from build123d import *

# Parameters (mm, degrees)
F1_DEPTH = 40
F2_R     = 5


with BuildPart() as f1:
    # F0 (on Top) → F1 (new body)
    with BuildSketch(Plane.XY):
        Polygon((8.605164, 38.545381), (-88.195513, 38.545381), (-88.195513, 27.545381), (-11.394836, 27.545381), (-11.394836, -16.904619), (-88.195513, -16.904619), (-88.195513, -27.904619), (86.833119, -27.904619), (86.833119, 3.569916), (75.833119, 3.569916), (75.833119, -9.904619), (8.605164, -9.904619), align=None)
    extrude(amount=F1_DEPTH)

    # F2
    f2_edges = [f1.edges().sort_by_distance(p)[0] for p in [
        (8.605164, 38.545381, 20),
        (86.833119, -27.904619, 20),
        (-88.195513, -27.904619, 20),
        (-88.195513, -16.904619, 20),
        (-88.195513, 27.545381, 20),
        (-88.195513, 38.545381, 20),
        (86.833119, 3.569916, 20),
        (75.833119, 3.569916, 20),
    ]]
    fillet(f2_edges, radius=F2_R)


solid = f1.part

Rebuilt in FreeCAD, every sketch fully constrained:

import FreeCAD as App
import Part
import Sketcher

V = App.Vector
Q = App.Units.Quantity


def edges_at(feature, points):
    """Names of the edges that pass closest to the given points."""
    edges = feature.Shape.Edges
    near = lambda p: min(range(len(edges)), key=lambda i: edges[i].distToShape(Part.Vertex(*p))[0])
    return sorted({f"Edge{near(p) + 1}" for p in points})


def add_polygon(sketch, points):
    """Adds a closed chain of lines whose ends are joined by coincident constraints."""
    first, n = sketch.GeometryCount, len(points)
    for a, b in zip(points, points[1:] + points[:1]):
        sketch.addGeometry(Part.LineSegment(App.Vector(*a, 0), App.Vector(*b, 0)), False)
    for i in range(n):
        sketch.addConstraint(Sketcher.Constraint("Coincident", first + i, 2, first + (i + 1) % n, 1))

doc = App.newDocument("Part")
body = doc.addObject("PartDesign::Body", "Body")

# Sketch on XY plane
sketch1 = doc.addObject("Sketcher::SketchObject", "Sketch")
body.addObject(sketch1)
sketch1.AttachmentSupport = (doc.XY_Plane, [""])
sketch1.MapMode = "FlatFace"
add_polygon(sketch1, [(9, 39), (-88, 39), (-88, 28), (-11, 28), (-11, -17), (-88, -17), (-88, -28), (87, -28), (87, 4), (76, 4), (76, -10), (9, -10)])  # lines 0-11
sketch1.addConstraint([
    Sketcher.Constraint("Horizontal", 0),
    Sketcher.Constraint("Vertical", 1),
    Sketcher.Constraint("Horizontal", 2),
    Sketcher.Constraint("Vertical", 3),
    Sketcher.Constraint("Horizontal", 4),
    Sketcher.Constraint("Vertical", 5),
    Sketcher.Constraint("Horizontal", 6),
    Sketcher.Constraint("Vertical", 7),
    Sketcher.Constraint("Horizontal", 8),
    Sketcher.Constraint("Vertical", 9),
    Sketcher.Constraint("Horizontal", 10),
    Sketcher.Constraint("Vertical", 11),
    Sketcher.Constraint("Vertical", 1, 2, 4, 2),
    Sketcher.Constraint("Equal", 8, 1),
    Sketcher.Constraint("Equal", 1, 5),
    Sketcher.Constraint("DistanceX", 8, 2, 8, 1, Q("11 mm")),
    Sketcher.Constraint("DistanceY", 6, 2, 9, 2, Q("18 mm")),
    Sketcher.Constraint("DistanceX", 3, 2, 10, 2, Q("20 mm")),
    Sketcher.Constraint("DistanceY", 3, 2, 3, 1, Q("44.45 mm")),
    Sketcher.Constraint("DistanceX", 0, 2, 0, 1, Q("96.800677 mm")),
    Sketcher.Constraint("DistanceX", 6, 1, 6, 2, Q("175.028632 mm")),
    Sketcher.Constraint("DistanceY", 7, 1, 7, 2, Q("31.474535 mm")),
    Sketcher.Constraint("DistanceY", -1, 1, 0, 2, Q("38.545381 mm")),
    Sketcher.Constraint("DistanceX", -1, 1, 6, 2, Q("86.833119 mm")),
])
pad1 = doc.addObject("PartDesign::Pad", "Pad")
body.addObject(pad1)
pad1.Profile = sketch1
pad1.Length = 40
doc.recompute()

fillet = doc.addObject("PartDesign::Fillet", "Fillet")
body.addObject(fillet)
fillet.Base = (pad1, edges_at(pad1, [
    (8.605, 38.545, 20),
    (86.833, -27.905, 20),
    (-88.196, -27.905, 20),
    (-88.196, -16.905, 20),
    (-88.196, 27.545, 20),
    (-88.196, 38.545, 20),
    (86.833, 3.57, 20),
    (75.833, 3.57, 20),
]))
fillet.Radius = 5

doc.recompute()
